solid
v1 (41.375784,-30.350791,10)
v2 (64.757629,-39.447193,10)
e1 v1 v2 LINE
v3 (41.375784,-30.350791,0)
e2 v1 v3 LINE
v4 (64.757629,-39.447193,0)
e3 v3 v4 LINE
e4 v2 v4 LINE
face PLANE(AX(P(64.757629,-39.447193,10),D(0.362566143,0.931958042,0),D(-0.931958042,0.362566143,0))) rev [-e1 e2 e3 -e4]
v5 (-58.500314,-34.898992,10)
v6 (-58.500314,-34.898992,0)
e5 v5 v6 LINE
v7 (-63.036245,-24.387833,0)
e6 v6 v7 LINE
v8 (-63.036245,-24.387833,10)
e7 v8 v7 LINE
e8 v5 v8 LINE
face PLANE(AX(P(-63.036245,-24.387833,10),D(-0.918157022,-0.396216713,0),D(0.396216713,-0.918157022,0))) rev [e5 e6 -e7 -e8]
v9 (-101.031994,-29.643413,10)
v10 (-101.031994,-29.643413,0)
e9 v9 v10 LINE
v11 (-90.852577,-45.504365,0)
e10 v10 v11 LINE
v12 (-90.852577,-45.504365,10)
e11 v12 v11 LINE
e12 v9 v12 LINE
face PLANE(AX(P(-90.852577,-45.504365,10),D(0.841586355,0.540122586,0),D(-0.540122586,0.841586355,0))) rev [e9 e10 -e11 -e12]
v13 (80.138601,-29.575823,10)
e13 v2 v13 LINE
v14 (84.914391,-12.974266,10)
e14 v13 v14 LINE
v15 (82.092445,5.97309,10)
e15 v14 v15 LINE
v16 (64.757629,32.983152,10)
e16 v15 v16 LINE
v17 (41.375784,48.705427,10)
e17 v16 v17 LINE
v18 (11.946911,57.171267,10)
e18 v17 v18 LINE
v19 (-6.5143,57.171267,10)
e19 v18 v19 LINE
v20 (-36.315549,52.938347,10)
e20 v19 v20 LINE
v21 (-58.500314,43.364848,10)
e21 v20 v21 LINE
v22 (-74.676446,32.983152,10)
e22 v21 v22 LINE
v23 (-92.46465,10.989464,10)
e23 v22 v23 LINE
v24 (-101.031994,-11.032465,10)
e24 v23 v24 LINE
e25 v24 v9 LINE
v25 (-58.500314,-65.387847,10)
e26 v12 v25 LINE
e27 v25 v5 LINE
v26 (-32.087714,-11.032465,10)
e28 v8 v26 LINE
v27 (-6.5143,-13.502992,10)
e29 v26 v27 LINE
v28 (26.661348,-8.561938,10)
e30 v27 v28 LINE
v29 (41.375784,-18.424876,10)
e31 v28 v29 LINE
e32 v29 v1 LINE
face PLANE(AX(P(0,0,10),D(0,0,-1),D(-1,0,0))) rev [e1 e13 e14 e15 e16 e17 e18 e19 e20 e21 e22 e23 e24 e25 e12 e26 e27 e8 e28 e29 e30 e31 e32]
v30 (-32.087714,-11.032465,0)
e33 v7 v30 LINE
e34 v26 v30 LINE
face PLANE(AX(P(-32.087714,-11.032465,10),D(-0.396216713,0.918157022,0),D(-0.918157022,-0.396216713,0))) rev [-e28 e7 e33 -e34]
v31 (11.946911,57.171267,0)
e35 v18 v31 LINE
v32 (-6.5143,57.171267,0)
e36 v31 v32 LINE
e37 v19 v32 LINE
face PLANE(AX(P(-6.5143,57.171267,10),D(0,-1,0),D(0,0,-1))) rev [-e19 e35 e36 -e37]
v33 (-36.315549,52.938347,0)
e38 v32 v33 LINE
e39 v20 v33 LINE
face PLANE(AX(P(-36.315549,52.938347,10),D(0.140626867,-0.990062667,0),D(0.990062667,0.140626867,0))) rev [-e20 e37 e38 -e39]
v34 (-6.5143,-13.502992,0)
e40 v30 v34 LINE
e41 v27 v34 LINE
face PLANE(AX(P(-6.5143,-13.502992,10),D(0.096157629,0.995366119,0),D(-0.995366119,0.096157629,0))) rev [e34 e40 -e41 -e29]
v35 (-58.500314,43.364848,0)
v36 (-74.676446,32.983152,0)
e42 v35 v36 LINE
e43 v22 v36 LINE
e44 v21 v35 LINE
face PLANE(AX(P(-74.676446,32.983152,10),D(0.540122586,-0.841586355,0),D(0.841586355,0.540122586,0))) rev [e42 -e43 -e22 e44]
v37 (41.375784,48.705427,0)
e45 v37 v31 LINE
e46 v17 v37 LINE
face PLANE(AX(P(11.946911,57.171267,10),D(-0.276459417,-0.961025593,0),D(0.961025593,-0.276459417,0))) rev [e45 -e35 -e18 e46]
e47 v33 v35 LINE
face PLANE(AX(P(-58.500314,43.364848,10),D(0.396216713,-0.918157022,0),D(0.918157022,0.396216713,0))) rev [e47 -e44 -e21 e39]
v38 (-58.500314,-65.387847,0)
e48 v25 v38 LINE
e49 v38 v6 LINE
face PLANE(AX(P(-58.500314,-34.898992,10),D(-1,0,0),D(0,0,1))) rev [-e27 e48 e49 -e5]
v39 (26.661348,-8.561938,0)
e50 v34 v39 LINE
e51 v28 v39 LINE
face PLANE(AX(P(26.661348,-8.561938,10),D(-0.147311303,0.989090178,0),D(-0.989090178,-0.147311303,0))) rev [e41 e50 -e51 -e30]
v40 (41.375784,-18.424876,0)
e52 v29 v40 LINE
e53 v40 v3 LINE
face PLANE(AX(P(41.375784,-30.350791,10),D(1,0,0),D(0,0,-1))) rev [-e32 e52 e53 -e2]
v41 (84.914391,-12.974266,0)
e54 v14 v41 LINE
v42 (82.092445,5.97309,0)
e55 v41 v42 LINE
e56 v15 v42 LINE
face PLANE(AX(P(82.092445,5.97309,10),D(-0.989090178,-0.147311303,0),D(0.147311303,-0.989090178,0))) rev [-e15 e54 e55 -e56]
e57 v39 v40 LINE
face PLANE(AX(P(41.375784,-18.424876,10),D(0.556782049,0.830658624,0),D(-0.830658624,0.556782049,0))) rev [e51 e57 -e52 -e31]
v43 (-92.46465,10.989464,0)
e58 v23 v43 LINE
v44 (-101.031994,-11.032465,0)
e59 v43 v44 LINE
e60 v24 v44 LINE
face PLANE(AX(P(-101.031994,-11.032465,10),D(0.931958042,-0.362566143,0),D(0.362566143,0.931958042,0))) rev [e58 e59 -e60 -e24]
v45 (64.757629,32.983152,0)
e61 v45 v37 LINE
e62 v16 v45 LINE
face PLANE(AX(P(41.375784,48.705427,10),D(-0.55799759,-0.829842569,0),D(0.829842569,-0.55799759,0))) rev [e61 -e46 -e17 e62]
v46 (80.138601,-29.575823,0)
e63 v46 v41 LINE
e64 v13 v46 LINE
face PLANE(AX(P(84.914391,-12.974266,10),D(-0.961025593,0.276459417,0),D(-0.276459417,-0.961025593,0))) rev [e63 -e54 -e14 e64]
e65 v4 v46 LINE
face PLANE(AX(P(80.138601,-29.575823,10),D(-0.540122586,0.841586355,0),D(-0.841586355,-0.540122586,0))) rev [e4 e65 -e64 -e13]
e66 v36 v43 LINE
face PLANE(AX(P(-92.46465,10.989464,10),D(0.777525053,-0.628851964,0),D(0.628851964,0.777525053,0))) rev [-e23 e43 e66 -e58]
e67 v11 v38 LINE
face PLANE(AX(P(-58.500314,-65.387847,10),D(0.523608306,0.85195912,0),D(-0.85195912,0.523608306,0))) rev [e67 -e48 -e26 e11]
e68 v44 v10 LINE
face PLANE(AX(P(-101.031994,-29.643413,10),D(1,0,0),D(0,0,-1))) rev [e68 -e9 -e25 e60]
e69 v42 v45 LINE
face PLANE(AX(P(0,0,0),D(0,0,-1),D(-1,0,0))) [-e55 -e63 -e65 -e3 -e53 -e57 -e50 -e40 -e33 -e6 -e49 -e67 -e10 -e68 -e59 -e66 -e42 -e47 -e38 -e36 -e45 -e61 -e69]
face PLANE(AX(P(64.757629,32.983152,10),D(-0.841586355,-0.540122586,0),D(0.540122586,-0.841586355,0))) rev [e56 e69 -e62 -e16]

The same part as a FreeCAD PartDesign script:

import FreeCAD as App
import Part
import Sketcher
from FreeCAD import Vector
Q = App.Units.Quantity

doc = App.newDocument("Part")
params = doc.addObject("Spreadsheet::Sheet", "Params")
for row, (alias, value) in enumerate([
    ("pad1_length", "10 mm"),
], start=1):
    params.set(f"A{row}", alias)
    params.set(f"B{row}", "=" + value)
    params.setAlias(f"B{row}", alias)

body = doc.addObject("PartDesign::Body", "Body")

# Sketch on XY plane
sketch1 = body.newObject("Sketcher::SketchObject", "Sketch")
sketch1.AttachmentSupport = (doc.getObject("XY_Plane"), [""])
sketch1.MapMode = "FlatFace"
sketch1.addGeometry([
    Part.LineSegment(Vector(12, 57, 0), Vector(-7, 57, 0)),  # 0
    Part.LineSegment(Vector(-7, 57, 0), Vector(-36, 53, 0)),  # 1
    Part.LineSegment(Vector(-36, 53, 0), Vector(-59, 43, 0)),  # 2
    Part.LineSegment(Vector(-59, 43, 0), Vector(-75, 33, 0)),  # 3
    Part.LineSegment(Vector(-75, 33, 0), Vector(-92, 11, 0)),  # 4
    Part.LineSegment(Vector(-92, 11, 0), Vector(-101, -11, 0)),  # 5
    Part.LineSegment(Vector(-101, -11, 0), Vector(-101, -30, 0)),  # 6
    Part.LineSegment(Vector(-101, -30, 0), Vector(-91, -46, 0)),  # 7
    Part.LineSegment(Vector(-91, -46, 0), Vector(-59, -65, 0)),  # 8
    Part.LineSegment(Vector(-59, -65, 0), Vector(-59, -35, 0)),  # 9
    Part.LineSegment(Vector(-59, -35, 0), Vector(-63, -24, 0)),  # 10
    Part.LineSegment(Vector(-63, -24, 0), Vector(-32, -11, 0)),  # 11
    Part.LineSegment(Vector(-32, -11, 0), Vector(-7, -14, 0)),  # 12
    Part.LineSegment(Vector(-7, -14, 0), Vector(27, -9, 0)),  # 13
    Part.LineSegment(Vector(27, -9, 0), Vector(41, -18, 0)),  # 14
    Part.LineSegment(Vector(41, -18, 0), Vector(41, -30, 0)),  # 15
    Part.LineSegment(Vector(41, -30, 0), Vector(65, -39, 0)),  # 16
    Part.LineSegment(Vector(65, -39, 0), Vector(80, -30, 0)),  # 17
    Part.LineSegment(Vector(80, -30, 0), Vector(85, -13, 0)),  # 18
    Part.LineSegment(Vector(85, -13, 0), Vector(82, 6, 0)),  # 19
    Part.LineSegment(Vector(82, 6, 0), Vector(65, 33, 0)),  # 20
    Part.LineSegment(Vector(65, 33, 0), Vector(41, 49, 0)),  # 21
    Part.LineSegment(Vector(41, 49, 0), Vector(12, 57, 0)),  # 22
], False)
sketch1.addConstraint([
    Sketcher.Constraint("Coincident", 0, 2, 1, 1),
    Sketcher.Constraint("Coincident", 1, 2, 2, 1),
    Sketcher.Constraint("Coincident", 2, 2, 3, 1),
    Sketcher.Constraint("Coincident", 3, 2, 4, 1),
    Sketcher.Constraint("Coincident", 4, 2, 5, 1),
    Sketcher.Constraint("Coincident", 5, 2, 6, 1),
    Sketcher.Constraint("Coincident", 6, 2, 7, 1),
    Sketcher.Constraint("Coincident", 7, 2, 8, 1),
    Sketcher.Constraint("Coincident", 8, 2, 9, 1),
    Sketcher.Constraint("Coincident", 9, 2, 10, 1),
    Sketcher.Constraint("Coincident", 10, 2, 11, 1),
    Sketcher.Constraint("Coincident", 11, 2, 12, 1),
    Sketcher.Constraint("Coincident", 12, 2, 13, 1),
    Sketcher.Constraint("Coincident", 13, 2, 14, 1),
    Sketcher.Constraint("Coincident", 14, 2, 15, 1),
    Sketcher.Constraint("Coincident", 15, 2, 16, 1),
    Sketcher.Constraint("Coincident", 16, 2, 17, 1),
    Sketcher.Constraint("Coincident", 17, 2, 18, 1),
    Sketcher.Constraint("Coincident", 18, 2, 19, 1),
    Sketcher.Constraint("Coincident", 19, 2, 20, 1),
    Sketcher.Constraint("Coincident", 20, 2, 21, 1),
    Sketcher.Constraint("Coincident", 21, 2, 22, 1),
    Sketcher.Constraint("Coincident", 22, 2, 0, 1),
    Sketcher.Constraint("Horizontal", 0),
    Sketcher.Constraint("Vertical", 6),
    Sketcher.Constraint("Vertical", 9),
    Sketcher.Constraint("Vertical", 15),
    Sketcher.Constraint("Perpendicular", 3, 7),
    Sketcher.Constraint("Perpendicular", 2, 10),
    Sketcher.Constraint("Perpendicular", 10, 11),
    Sketcher.Constraint("Perpendicular", 5, 16),
    Sketcher.Constraint("Perpendicular", 7, 17),
    Sketcher.Constraint("Perpendicular", 13, 19),
    Sketcher.Constraint("Perpendicular", 17, 20),
    Sketcher.Constraint("Perpendicular", 18, 22),
    Sketcher.Constraint("Horizontal", 5, 2, 11, 2),
    Sketcher.Constraint("Horizontal", 3, 2, 20, 2),
    Sketcher.Constraint("Vertical", 2, 2, 8, 2),
    Sketcher.Constraint("Vertical", 0, 2, 12, 2),
    Sketcher.Constraint("Vertical", 16, 2, 20, 2),
    Sketcher.Constraint("Vertical", 15, 2, 21, 2),
    Sketcher.Constraint("Distance", 3, Q("19.221 mm")),
    Sketcher.Constraint("DistanceY", 8, 2, 3, 2, Q("98.370999 mm")),
    Sketcher.Constraint("DistanceY", 9, 2, 12, 2, Q("21.396 mm")),
    Sketcher.Constraint("DistanceX", 0, 2, 0, 1, Q("18.461212 mm")),
    Sketcher.Constraint("DistanceX", 0, 2, -1, 1, Q("6.5143 mm")),
    Sketcher.Constraint("DistanceX", -1, 1, 17, 2, Q("80.138601 mm")),
    Sketcher.Constraint("DistanceY", 2, 2, 1, 2, Q("9.573498 mm")),
    Sketcher.Constraint("DistanceX", 4, 2, 1, 2, Q("56.149101 mm")),
    Sketcher.Constraint("DistanceY", 7, 2, 5, 2, Q("34.4719 mm")),
    Sketcher.Constraint("DistanceX", 9, 2, 11, 2, Q("26.4126 mm")),
    Sketcher.Constraint("DistanceX", 11, 2, 14, 2, Q("73.463499 mm")),
    Sketcher.Constraint("DistanceY", 15, 2, 12, 2, Q("16.847799 mm")),
    Sketcher.Constraint("DistanceY", 16, 2, 12, 2, Q("25.944201 mm")),
    Sketcher.Constraint("Distance", 2, Q("24.162278 mm")),
    Sketcher.Constraint("Distance", 4, Q("28.286791 mm")),
    Sketcher.Constraint("Distance", 8, Q("37.973962 mm")),
    Sketcher.Constraint("Distance", 11, Q("33.707231 mm")),
    Sketcher.Constraint("Distance", 12, Q("25.69247 mm")),
    Sketcher.Constraint("Distance", 13, Q("33.541581 mm")),
    Sketcher.Constraint("Distance", 14, Q("17.71418 mm")),
    Sketcher.Constraint("Distance", 19, Q("19.156349 mm")),
    Sketcher.Constraint("Distance", 21, Q("28.176241 mm")),
    Sketcher.Constraint("Distance", 22, Q("30.622362 mm")),
    Sketcher.Constraint("DistanceY", 6, 2, 6, 1, Q("18.610948 mm")),
    Sketcher.Constraint("DistanceY", 9, 1, 9, 2, Q("30.488855 mm")),
    Sketcher.Constraint("DistanceY", 15, 2, 15, 1, Q("11.925915 mm")),
    Sketcher.Constraint("DistanceY", -1, 1, 2, 2, Q("43.364848 mm")),
    Sketcher.Constraint("DistanceY", 9, 2, -1, 1, Q("34.898992 mm")),
])
pad1 = body.newObject("PartDesign::Pad", "Pad")
pad1.Profile = sketch1
pad1.setExpression("Length", "Params.pad1_length")

doc.recompute()
